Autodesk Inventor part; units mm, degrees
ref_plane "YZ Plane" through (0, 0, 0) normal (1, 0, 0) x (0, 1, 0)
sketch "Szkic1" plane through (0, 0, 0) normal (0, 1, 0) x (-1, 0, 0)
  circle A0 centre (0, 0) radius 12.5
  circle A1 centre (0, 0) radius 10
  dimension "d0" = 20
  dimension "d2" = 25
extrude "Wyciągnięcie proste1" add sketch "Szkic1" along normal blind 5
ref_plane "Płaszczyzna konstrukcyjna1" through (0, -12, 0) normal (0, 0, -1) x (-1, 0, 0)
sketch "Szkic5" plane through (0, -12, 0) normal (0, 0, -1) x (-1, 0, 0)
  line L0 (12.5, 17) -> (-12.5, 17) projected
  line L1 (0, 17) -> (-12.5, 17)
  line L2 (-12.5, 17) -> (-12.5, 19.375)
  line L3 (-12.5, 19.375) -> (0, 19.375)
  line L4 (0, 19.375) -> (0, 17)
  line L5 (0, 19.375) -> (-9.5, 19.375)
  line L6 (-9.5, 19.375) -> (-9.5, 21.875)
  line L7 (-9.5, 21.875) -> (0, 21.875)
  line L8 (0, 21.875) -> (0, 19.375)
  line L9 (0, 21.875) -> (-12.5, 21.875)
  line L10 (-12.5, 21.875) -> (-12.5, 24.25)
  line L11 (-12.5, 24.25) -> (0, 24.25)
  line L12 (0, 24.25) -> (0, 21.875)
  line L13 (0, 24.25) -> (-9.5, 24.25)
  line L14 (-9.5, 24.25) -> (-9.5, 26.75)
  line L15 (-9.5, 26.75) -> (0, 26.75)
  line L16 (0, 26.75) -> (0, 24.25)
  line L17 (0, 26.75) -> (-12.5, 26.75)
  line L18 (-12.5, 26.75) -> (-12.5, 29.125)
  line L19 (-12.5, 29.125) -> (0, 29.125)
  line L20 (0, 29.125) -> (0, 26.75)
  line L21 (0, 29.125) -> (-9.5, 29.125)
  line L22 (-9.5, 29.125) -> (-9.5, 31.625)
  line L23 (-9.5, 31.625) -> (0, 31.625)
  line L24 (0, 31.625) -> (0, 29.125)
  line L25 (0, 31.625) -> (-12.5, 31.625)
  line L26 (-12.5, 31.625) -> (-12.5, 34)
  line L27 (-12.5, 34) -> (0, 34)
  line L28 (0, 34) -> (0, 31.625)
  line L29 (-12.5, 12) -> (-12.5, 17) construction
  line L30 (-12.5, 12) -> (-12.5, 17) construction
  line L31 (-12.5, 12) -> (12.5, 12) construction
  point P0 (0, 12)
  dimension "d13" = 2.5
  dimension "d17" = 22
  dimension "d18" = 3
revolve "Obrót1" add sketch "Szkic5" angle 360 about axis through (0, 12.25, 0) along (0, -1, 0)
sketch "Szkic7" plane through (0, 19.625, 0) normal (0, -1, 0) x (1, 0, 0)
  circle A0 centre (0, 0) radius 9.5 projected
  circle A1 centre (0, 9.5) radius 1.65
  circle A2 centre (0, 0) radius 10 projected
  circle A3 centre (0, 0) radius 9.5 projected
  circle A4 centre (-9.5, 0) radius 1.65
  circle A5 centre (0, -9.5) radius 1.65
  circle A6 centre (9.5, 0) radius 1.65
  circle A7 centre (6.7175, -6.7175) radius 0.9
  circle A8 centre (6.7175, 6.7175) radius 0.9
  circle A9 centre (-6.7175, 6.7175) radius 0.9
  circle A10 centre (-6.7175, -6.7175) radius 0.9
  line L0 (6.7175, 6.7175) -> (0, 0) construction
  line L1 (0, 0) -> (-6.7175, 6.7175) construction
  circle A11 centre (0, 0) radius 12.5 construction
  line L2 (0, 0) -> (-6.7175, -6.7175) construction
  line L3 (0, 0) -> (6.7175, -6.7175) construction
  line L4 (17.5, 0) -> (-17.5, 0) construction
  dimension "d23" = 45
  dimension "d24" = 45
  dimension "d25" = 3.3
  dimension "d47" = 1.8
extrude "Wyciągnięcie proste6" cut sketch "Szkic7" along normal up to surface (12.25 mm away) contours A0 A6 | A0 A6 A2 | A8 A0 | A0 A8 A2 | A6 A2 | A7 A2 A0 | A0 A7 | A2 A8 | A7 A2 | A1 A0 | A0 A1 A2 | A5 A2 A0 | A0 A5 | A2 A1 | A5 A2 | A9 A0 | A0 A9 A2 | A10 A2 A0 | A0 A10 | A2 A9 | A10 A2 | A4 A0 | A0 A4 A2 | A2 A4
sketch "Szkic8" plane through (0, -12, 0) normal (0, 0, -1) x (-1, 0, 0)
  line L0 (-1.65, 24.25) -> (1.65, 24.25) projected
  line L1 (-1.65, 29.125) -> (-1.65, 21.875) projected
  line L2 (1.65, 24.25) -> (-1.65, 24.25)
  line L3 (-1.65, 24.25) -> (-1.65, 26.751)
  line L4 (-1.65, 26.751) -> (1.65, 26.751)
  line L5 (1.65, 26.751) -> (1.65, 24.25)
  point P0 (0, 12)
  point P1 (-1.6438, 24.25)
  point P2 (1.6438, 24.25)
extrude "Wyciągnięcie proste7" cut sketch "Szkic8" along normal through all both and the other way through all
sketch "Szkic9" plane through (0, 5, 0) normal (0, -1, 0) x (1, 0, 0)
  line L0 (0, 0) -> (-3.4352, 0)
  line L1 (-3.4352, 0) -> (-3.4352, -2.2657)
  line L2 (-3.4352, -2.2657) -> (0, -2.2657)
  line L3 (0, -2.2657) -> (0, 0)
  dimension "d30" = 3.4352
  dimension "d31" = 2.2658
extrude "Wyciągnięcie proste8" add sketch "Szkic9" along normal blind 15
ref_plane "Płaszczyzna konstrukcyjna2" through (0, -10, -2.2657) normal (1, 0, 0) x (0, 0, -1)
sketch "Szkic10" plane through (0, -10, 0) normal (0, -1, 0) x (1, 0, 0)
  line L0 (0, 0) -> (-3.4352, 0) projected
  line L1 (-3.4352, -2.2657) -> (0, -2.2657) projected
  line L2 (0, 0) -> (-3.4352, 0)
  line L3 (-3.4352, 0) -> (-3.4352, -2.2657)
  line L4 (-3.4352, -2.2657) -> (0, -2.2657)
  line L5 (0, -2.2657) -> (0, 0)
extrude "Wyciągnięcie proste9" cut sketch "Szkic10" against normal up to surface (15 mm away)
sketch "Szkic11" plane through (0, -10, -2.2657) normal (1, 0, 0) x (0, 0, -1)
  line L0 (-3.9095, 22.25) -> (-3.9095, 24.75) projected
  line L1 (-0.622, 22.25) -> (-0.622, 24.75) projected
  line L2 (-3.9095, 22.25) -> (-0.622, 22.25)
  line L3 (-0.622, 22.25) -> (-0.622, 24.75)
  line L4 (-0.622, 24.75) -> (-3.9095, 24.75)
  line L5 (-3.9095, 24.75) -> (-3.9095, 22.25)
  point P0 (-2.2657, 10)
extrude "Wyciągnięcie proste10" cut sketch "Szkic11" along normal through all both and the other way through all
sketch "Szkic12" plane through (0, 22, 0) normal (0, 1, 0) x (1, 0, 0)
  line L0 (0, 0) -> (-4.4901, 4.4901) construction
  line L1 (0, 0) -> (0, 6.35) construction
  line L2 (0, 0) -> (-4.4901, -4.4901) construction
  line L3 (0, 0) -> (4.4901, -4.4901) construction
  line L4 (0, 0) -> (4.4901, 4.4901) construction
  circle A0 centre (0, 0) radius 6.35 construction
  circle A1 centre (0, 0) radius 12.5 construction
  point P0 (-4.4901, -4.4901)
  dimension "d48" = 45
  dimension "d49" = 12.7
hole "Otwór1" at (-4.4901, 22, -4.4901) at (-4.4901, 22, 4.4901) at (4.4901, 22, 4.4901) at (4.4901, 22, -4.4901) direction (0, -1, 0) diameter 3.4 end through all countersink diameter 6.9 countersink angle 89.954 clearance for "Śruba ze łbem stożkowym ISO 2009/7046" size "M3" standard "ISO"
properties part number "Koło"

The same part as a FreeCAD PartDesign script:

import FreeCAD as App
import Part
import Sketcher

V = App.Vector
Q = App.Units.Quantity

doc = App.newDocument("Part")
params = doc.addObject("Spreadsheet::Sheet", "Params")
for row, (alias, value) in enumerate([
    ("sketch1_diameter", "25 mm"),
    ("sketch1_diameter2", "20 mm"),
    ("pad1_length", "5 mm"),
    ("sketch2_width", "3 mm"),
    ("sketch2_height", "2.5 mm"),
    ("sketch2_height2", "17 mm"),
    ("sketch2_width2", "12.5 mm"),
    ("revolution_angle", "360 deg"),
    ("sketch3_diameter", "3.3 mm"),
    ("sketch3_diameter2", "1.8 mm"),
    ("pocket1_length", "12.25 mm"),
    ("sketch4_width", "3.3 mm"),
    ("pad2_length", "15 mm"),
    ("pocket3_length", "15 mm"),
    ("sketch7_width", "2.5 mm"),
    ("sketch8_diameter", "3.4 mm"),
    ("hole_diameter", "3.4 mm"),
    ("hole_csink_diameter", "6.9 mm"),
], start=1):
    params.set(f"A{row}", alias)
    params.set(f"B{row}", "=" + value)
    params.setAlias(f"B{row}", alias)

body = doc.addObject("PartDesign::Body", "Body")

sketch1 = body.newObject("Sketcher::SketchObject", "Sketch")
sketch1.AttachmentSupport = (doc.getObject("XZ_Plane"), [""])
sketch1.MapMode = "FlatFace"
sketch1.addGeometry(Part.Circle(V(0, 0, 0), V(0, 0, 1), 12), False)
sketch1.addGeometry(Part.Circle(V(0, 0, 0), V(0, 0, 1), 10), False)
sketch1.addConstraint(Sketcher.Constraint("Coincident", 0, 3, -1, 1))
sketch1.addConstraint(Sketcher.Constraint("Coincident", 1, 3, -1, 1))
sketch1.addConstraint(Sketcher.Constraint("Diameter", 0, Q("25 mm")))
sketch1.addConstraint(Sketcher.Constraint("Diameter", 1, Q("20 mm")))
sketch1.setExpression("Constraints[2]", "Params.sketch1_diameter")
sketch1.setExpression("Constraints[3]", "Params.sketch1_diameter2")
pad1 = body.newObject("PartDesign::Pad", "Pad")
pad1.Profile = sketch1
pad1.setExpression("Length", "Params.pad1_length")
pad1.Reversed = True

sketch2 = body.newObject("Sketcher::SketchObject", "Sketch001")
sketch2.AttachmentSupport = (doc.getObject("XY_Plane"), [""])
sketch2.MapMode = "FlatFace"
sketch2.addGeometry(Part.LineSegment(V(12.5, 5, 0), V(0, 5, 0)), False)
sketch2.addGeometry(Part.LineSegment(V(0, 5, 0), V(0, 22, 0)), False)
sketch2.addGeometry(Part.LineSegment(V(0, 22, 0), V(12.5, 22, 0)), False)
sketch2.addGeometry(Part.LineSegment(V(12.5, 22, 0), V(12.5, 19.6, 0)), False)
sketch2.addGeometry(Part.LineSegment(V(12.5, 19.6, 0), V(9.5, 19.6, 0)), False)
sketch2.addGeometry(Part.LineSegment(V(9.5, 19.6, 0), V(9.5, 17.1, 0)), False)
sketch2.addGeometry(Part.LineSegment(V(9.5, 17.1, 0), V(12.5, 17.1, 0)), False)
sketch2.addGeometry(Part.LineSegment(V(12.5, 17.1, 0), V(12.5, 14.8, 0)), False)
sketch2.addGeometry(Part.LineSegment(V(12.5, 14.8, 0), V(9.5, 14.8, 0)), False)
sketch2.addGeometry(Part.LineSegment(V(9.5, 14.8, 0), V(9.5, 12.2, 0)), False)
sketch2.addGeometry(Part.LineSegment(V(9.5, 12.2, 0), V(12.5, 12.2, 0)), False)
sketch2.addGeometry(Part.LineSegment(V(12.5, 12.2, 0), V(12.5, 9.9, 0)), False)
sketch2.addGeometry(Part.LineSegment(V(12.5, 9.9, 0), V(9.5, 9.9, 0)), False)
sketch2.addGeometry(Part.LineSegment(V(9.5, 9.9, 0), V(9.5, 7.4, 0)), False)
sketch2.addGeometry(Part.LineSegment(V(9.5, 7.4, 0), V(12.5, 7.4, 0)), False)
sketch2.addGeometry(Part.LineSegment(V(12.5, 7.4, 0), V(12.5, 5, 0)), False)
sketch2.addConstraint(Sketcher.Constraint("Coincident", 0, 2, 1, 1))
sketch2.addConstraint(Sketcher.Constraint("Coincident", 1, 2, 2, 1))
sketch2.addConstraint(Sketcher.Constraint("Coincident", 2, 2, 3, 1))
sketch2.addConstraint(Sketcher.Constraint("Coincident", 3, 2, 4, 1))
sketch2.addConstraint(Sketcher.Constraint("Coincident", 4, 2, 5, 1))
sketch2.addConstraint(Sketcher.Constraint("Coincident", 5, 2, 6, 1))
sketch2.addConstraint(Sketcher.Constraint("Coincident", 6, 2, 7, 1))
sketch2.addConstraint(Sketcher.Constraint("Coincident", 7, 2, 8, 1))
sketch2.addConstraint(Sketcher.Constraint("Coincident", 8, 2, 9, 1))
sketch2.addConstraint(Sketcher.Constraint("Coincident", 9, 2, 10, 1))
sketch2.addConstraint(Sketcher.Constraint("Coincident", 10, 2, 11, 1))
sketch2.addConstraint(Sketcher.Constraint("Coincident", 11, 2, 12, 1))
sketch2.addConstraint(Sketcher.Constraint("Coincident", 12, 2, 13, 1))
sketch2.addConstraint(Sketcher.Constraint("Coincident", 13, 2, 14, 1))
sketch2.addConstraint(Sketcher.Constraint("Coincident", 14, 2, 15, 1))
sketch2.addConstraint(Sketcher.Constraint("Coincident", 15, 2, 0, 1))
sketch2.addConstraint(Sketcher.Constraint("Horizontal", 0))
sketch2.addConstraint(Sketcher.Constraint("Vertical", 1))
sketch2.addConstraint(Sketcher.Constraint("Horizontal", 2))
sketch2.addConstraint(Sketcher.Constraint("Vertical", 3))
sketch2.addConstraint(Sketcher.Constraint("Horizontal", 4))
sketch2.addConstraint(Sketcher.Constraint("Vertical", 5))
sketch2.addConstraint(Sketcher.Constraint("Horizontal", 6))
sketch2.addConstraint(Sketcher.Constraint("Vertical", 7))
sketch2.addConstraint(Sketcher.Constraint("Horizontal", 8))
sketch2.addConstraint(Sketcher.Constraint("Vertical", 9))
sketch2.addConstraint(Sketcher.Constraint("Horizontal", 10))
sketch2.addConstraint(Sketcher.Constraint("Vertical", 11))
sketch2.addConstraint(Sketcher.Constraint("Horizontal", 12))
sketch2.addConstraint(Sketcher.Constraint("Vertical", 13))
sketch2.addConstraint(Sketcher.Constraint("Horizontal", 14))
sketch2.addConstraint(Sketcher.Constraint("Vertical", 15))
sketch2.addConstraint(Sketcher.Constraint("PointOnObject", 0, 2, -2))
sketch2.addConstraint(Sketcher.Constraint("Vertical", 3, 2, 6, 2))
sketch2.addConstraint(Sketcher.Constraint("Vertical", 5, 2, 8, 2))
sketch2.addConstraint(Sketcher.Constraint("Vertical", 7, 2, 10, 2))
sketch2.addConstraint(Sketcher.Constraint("Vertical", 9, 2, 12, 2))
sketch2.addConstraint(Sketcher.Constraint("Vertical", 11, 2, 14, 2))
sketch2.addConstraint(Sketcher.Constraint("Equal", 3, 7))
sketch2.addConstraint(Sketcher.Constraint("Equal", 5, 9))
sketch2.addConstraint(Sketcher.Constraint("Equal", 7, 11))
sketch2.addConstraint(Sketcher.Constraint("Equal", 9, 13))
sketch2.addConstraint(Sketcher.Constraint("Equal", 11, 15))
sketch2.addConstraint(Sketcher.Constraint("DistanceX", 4, 2, 4, 1, Q("3 mm")))
sketch2.addConstraint(Sketcher.Constraint("DistanceY", 5, 2, 5, 1, Q("2.5 mm")))
sketch2.addConstraint(Sketcher.Constraint("DistanceY", -1, 1, 1, 2, Q("22 mm")))
sketch2.addConstraint(Sketcher.Constraint("DistanceY", 1, 1, 1, 2, Q("17 mm")))
sketch2.addConstraint(Sketcher.Constraint("DistanceX", 0, 2, 0, 1, Q("12.5 mm")))
sketch2.setExpression("Constraints[43]", "Params.sketch2_width")
sketch2.setExpression("Constraints[44]", "Params.sketch2_height")
sketch2.setExpression("Constraints[46]", "Params.sketch2_height2")
sketch2.setExpression("Constraints[47]", "Params.sketch2_width2")
revolution = body.newObject("PartDesign::Revolution", "Revolution")
revolution.Profile = sketch2
revolution.ReferenceAxis = (sketch2, ["V_Axis"])
revolution.setExpression("Angle", "Params.revolution_angle")

sketch3 = body.newObject("Sketcher::SketchObject", "Sketch002")
sketch3.AttachmentSupport = (doc.getObject("XZ_Plane"), [""])
sketch3.MapMode = "FlatFace"
sketch3.AttachmentOffset = App.Placement(V(0, 0, -19.625), App.Rotation())
sketch3.addGeometry(Part.Circle(V(9.5, 0, 0), V(0, 0, 1), 1.6), False)
sketch3.addGeometry(Part.Circle(V(6.7, 6.7, 0), V(0, 0, 1), 0.9), False)
sketch3.addGeometry(Part.Circle(V(6.7, -6.7, 0), V(0, 0, 1), 0.9), False)
sketch3.addGeometry(Part.Circle(V(0, 9.5, 0), V(0, 0, 1), 1.6), False)
sketch3.addGeometry(Part.Circle(V(0, -9.5, 0), V(0, 0, 1), 1.6), False)
sketch3.addGeometry(Part.Circle(V(-6.7, 6.7, 0), V(0, 0, 1), 0.9), False)
sketch3.addGeometry(Part.Circle(V(-6.7, -6.7, 0), V(0, 0, 1), 0.9), False)
sketch3.addGeometry(Part.Circle(V(-9.5, 0, 0), V(0, 0, 1), 1.6), False)
sketch3.addConstraint(Sketcher.Constraint("Equal", 1, 2))
sketch3.addConstraint(Sketcher.Constraint("Equal", 0, 3))
sketch3.addConstraint(Sketcher.Constraint("Equal", 3, 4))
sketch3.addConstraint(Sketcher.Constraint("Equal", 2, 5))
sketch3.addConstraint(Sketcher.Constraint("Equal", 5, 6))
sketch3.addConstraint(Sketcher.Constraint("Equal", 4, 7))
sketch3.addConstraint(Sketcher.Constraint("Symmetric", 3, 3, 4, 3, -1, 1))
sketch3.addConstraint(Sketcher.Constraint("Symmetric", 2, 3, 5, 3, -1, 1))
sketch3.addConstraint(Sketcher.Constraint("Symmetric", 1, 3, 6, 3, -1, 1))
sketch3.addConstraint(Sketcher.Constraint("Symmetric", 0, 3, 7, 3, -1, 1))
sketch3.addConstraint(Sketcher.Constraint("Symmetric", 1, 3, 5, 3, -2))
sketch3.addConstraint(Sketcher.Constraint("PointOnObject", 0, 3, -1))
sketch3.addConstraint(Sketcher.Constraint("PointOnObject", 3, 3, -2))
sketch3.addConstraint(Sketcher.Constraint("Diameter", 0, Q("3.3 mm")))
sketch3.addConstraint(Sketcher.Constraint("Diameter", 1, Q("1.8 mm")))
sketch3.addConstraint(Sketcher.Constraint("DistanceY", 4, 3, 3, 3, Q("19 mm")))
sketch3.addConstraint(Sketcher.Constraint("DistanceX", -1, 1, 0, 3, Q("9.5 mm")))
sketch3.addConstraint(Sketcher.Constraint("DistanceY", 2, 3, 1, 3, Q("13.435 mm")))
sketch3.addConstraint(Sketcher.Constraint("DistanceX", 5, 3, 1, 3, Q("13.435 mm")))
sketch3.setExpression("Constraints[13]", "Params.sketch3_diameter")
sketch3.setExpression("Constraints[14]", "Params.sketch3_diameter2")
pocket1 = body.newObject("PartDesign::Pocket", "Pocket")
pocket1.Profile = sketch3
pocket1.setExpression("Length", "Params.pocket1_length")
pocket1.Reversed = True

sketch4 = body.newObject("Sketcher::SketchObject", "Sketch003")
sketch4.AttachmentSupport = (doc.getObject("XY_Plane"), [""])
sketch4.MapMode = "FlatFace"
sketch4.addGeometry(Part.LineSegment(V(1.6, 14.8, 0), V(1.6, 12.2, 0)), False)
sketch4.addGeometry(Part.LineSegment(V(1.6, 12.2, 0), V(-1.6, 12.2, 0)), False)
sketch4.addGeometry(Part.LineSegment(V(-1.6, 12.2, 0), V(-1.6, 14.8, 0)), False)
sketch4.addGeometry(Part.LineSegment(V(-1.6, 14.8, 0), V(1.6, 14.8, 0)), False)
sketch4.addConstraint(Sketcher.Constraint("Coincident", 0, 2, 1, 1))
sketch4.addConstraint(Sketcher.Constraint("Coincident", 1, 2, 2, 1))
sketch4.addConstraint(Sketcher.Constraint("Coincident", 2, 2, 3, 1))
sketch4.addConstraint(Sketcher.Constraint("Coincident", 3, 2, 0, 1))
sketch4.addConstraint(Sketcher.Constraint("Vertical", 0))
sketch4.addConstraint(Sketcher.Constraint("Horizontal", 1))
sketch4.addConstraint(Sketcher.Constraint("Vertical", 2))
sketch4.addConstraint(Sketcher.Constraint("Horizontal", 3))
sketch4.addConstraint(Sketcher.Constraint("DistanceX", 1, 2, 1, 1, Q("3.3 mm")))
sketch4.addConstraint(Sketcher.Constraint("DistanceY", 0, 2, 0, 1, Q("2.501 mm")))
sketch4.addConstraint(Sketcher.Constraint("DistanceX", -1, 1, 0, 2, Q("1.65 mm")))
sketch4.addConstraint(Sketcher.Constraint("DistanceY", -1, 1, 0, 2, Q("12.25 mm")))
sketch4.setExpression("Constraints[8]", "Params.sketch4_width")
pocket2 = body.newObject("PartDesign::Pocket", "Pocket001")
pocket2.Profile = sketch4
pocket2.Type = "ThroughAll"
pocket2.Midplane = True

sketch5 = body.newObject("Sketcher::SketchObject", "Sketch004")
sketch5.AttachmentSupport = (doc.getObject("XZ_Plane"), [""])
sketch5.MapMode = "FlatFace"
sketch5.AttachmentOffset = App.Placement(V(0, 0, -5), App.Rotation())
sketch5.addGeometry(Part.LineSegment(V(0, -2.3, 0), V(0, 0, 0)), False)
sketch5.addGeometry(Part.LineSegment(V(0, 0, 0), V(-3.4, 0, 0)), False)
sketch5.addGeometry(Part.LineSegment(V(-3.4, 0, 0), V(-3.4, -2.3, 0)), False)
sketch5.addGeometry(Part.LineSegment(V(-3.4, -2.3, 0), V(0, -2.3, 0)), False)
sketch5.addConstraint(Sketcher.Constraint("Coincident", 0, 2, 1, 1))
sketch5.addConstraint(Sketcher.Constraint("Coincident", 1, 2, 2, 1))
sketch5.addConstraint(Sketcher.Constraint("Coincident", 2, 2, 3, 1))
sketch5.addConstraint(Sketcher.Constraint("Coincident", 3, 2, 0, 1))
sketch5.addConstraint(Sketcher.Constraint("Vertical", 0))
sketch5.addConstraint(Sketcher.Constraint("Horizontal", 1))
sketch5.addConstraint(Sketcher.Constraint("Vertical", 2))
sketch5.addConstraint(Sketcher.Constraint("Horizontal", 3))
sketch5.addConstraint(Sketcher.Constraint("Coincident", 0, 2, -1, 1))
sketch5.addConstraint(Sketcher.Constraint("DistanceX", 1, 2, 1, 1, Q("3.4352 mm")))
sketch5.addConstraint(Sketcher.Constraint("DistanceY", 0, 1, 0, 2, Q("2.2657 mm")))
pad2 = body.newObject("PartDesign::Pad", "Pad001")
pad2.Profile = sketch5
pad2.setExpression("Length", "Params.pad2_length")

sketch6 = body.newObject("Sketcher::SketchObject", "Sketch005")
sketch6.AttachmentSupport = (doc.getObject("XZ_Plane"), [""])
sketch6.MapMode = "FlatFace"
sketch6.AttachmentOffset = App.Placement(V(0, 0, 10), App.Rotation())
sketch6.addGeometry(Part.LineSegment(V(0, -2.3, 0), V(0, 0, 0)), False)
sketch6.addGeometry(Part.LineSegment(V(0, 0, 0), V(-3.4, 0, 0)), False)
sketch6.addGeometry(Part.LineSegment(V(-3.4, 0, 0), V(-3.4, -2.3, 0)), False)
sketch6.addGeometry(Part.LineSegment(V(-3.4, -2.3, 0), V(0, -2.3, 0)), False)
sketch6.addConstraint(Sketcher.Constraint("Coincident", 0, 2, 1, 1))
sketch6.addConstraint(Sketcher.Constraint("Coincident", 1, 2, 2, 1))
sketch6.addConstraint(Sketcher.Constraint("Coincident", 2, 2, 3, 1))
sketch6.addConstraint(Sketcher.Constraint("Coincident", 3, 2, 0, 1))
sketch6.addConstraint(Sketcher.Constraint("Vertical", 0))
sketch6.addConstraint(Sketcher.Constraint("Horizontal", 1))
sketch6.addConstraint(Sketcher.Constraint("Vertical", 2))
sketch6.addConstraint(Sketcher.Constraint("Horizontal", 3))
sketch6.addConstraint(Sketcher.Constraint("Coincident", 0, 2, -1, 1))
sketch6.addConstraint(Sketcher.Constraint("DistanceX", 1, 2, 1, 1, Q("3.4352 mm")))
sketch6.addConstraint(Sketcher.Constraint("DistanceY", 0, 1, 0, 2, Q("2.2657 mm")))
pocket3 = body.newObject("PartDesign::Pocket", "Pocket002")
pocket3.Profile = sketch6
pocket3.setExpression("Length", "Params.pocket3_length")

sketch7 = body.newObject("Sketcher::SketchObject", "Sketch006")
sketch7.AttachmentSupport = (doc.getObject("YZ_Plane"), [""])
sketch7.MapMode = "FlatFace"
sketch7.addGeometry(Part.LineSegment(V(14.8, 1.6, 0), V(12.2, 1.6, 0)), False)
sketch7.addGeometry(Part.LineSegment(V(12.2, 1.6, 0), V(12.2, -1.6, 0)), False)
sketch7.addGeometry(Part.LineSegment(V(12.2, -1.6, 0), V(14.8, -1.6, 0)), False)
sketch7.addGeometry(Part.LineSegment(V(14.8, -1.6, 0), V(14.8, 1.6, 0)), False)
sketch7.addConstraint(Sketcher.Constraint("Coincident", 0, 2, 1, 1))
sketch7.addConstraint(Sketcher.Constraint("Coincident", 1, 2, 2, 1))
sketch7.addConstraint(Sketcher.Constraint("Coincident", 2, 2, 3, 1))
sketch7.addConstraint(Sketcher.Constraint("Coincident", 3, 2, 0, 1))
sketch7.addConstraint(Sketcher.Constraint("Horizontal", 0))
sketch7.addConstraint(Sketcher.Constraint("Vertical", 1))
sketch7.addConstraint(Sketcher.Constraint("Horizontal", 2))
sketch7.addConstraint(Sketcher.Constraint("Vertical", 3))
sketch7.addConstraint(Sketcher.Constraint("DistanceX", 0, 2, 0, 1, Q("2.5 mm")))
sketch7.addConstraint(Sketcher.Constraint("DistanceX", -1, 1, 0, 2, Q("12.25 mm")))
sketch7.addConstraint(Sketcher.Constraint("DistanceY", 1, 2, 1, 1, Q("3.2875 mm")))
sketch7.addConstraint(Sketcher.Constraint("DistanceY", -1, 1, 0, 2, Q("1.6438 mm")))
sketch7.setExpression("Constraints[8]", "Params.sketch7_width")
pocket4 = body.newObject("PartDesign::Pocket", "Pocket003")
pocket4.Profile = sketch7
pocket4.Type = "ThroughAll"
pocket4.Midplane = True

sketch8 = body.newObject("Sketcher::SketchObject", "Sketch007")
sketch8.AttachmentSupport = (doc.getObject("XZ_Plane"), [""])
sketch8.MapMode = "FlatFace"
sketch8.AttachmentOffset = App.Placement(V(0, 0, -22), App.Rotation())
sketch8.addGeometry(Part.Circle(V(-4.5, -4.5, 0), V(0, 0, 1), 1.7), False)
sketch8.addGeometry(Part.Circle(V(-4.5, 4.5, 0), V(0, 0, 1), 1.7), False)
sketch8.addGeometry(Part.Circle(V(4.5, 4.5, 0), V(0, 0, 1), 1.7), False)
sketch8.addGeometry(Part.Circle(V(4.5, -4.5, 0), V(0, 0, 1), 1.7), False)
sketch8.addConstraint(Sketcher.Constraint("Equal", 0, 1))
sketch8.addConstraint(Sketcher.Constraint("Equal", 1, 2))
sketch8.addConstraint(Sketcher.Constraint("Equal", 2, 3))
sketch8.addConstraint(Sketcher.Constraint("Symmetric", 0, 3, 2, 3, -1, 1))
sketch8.addConstraint(Sketcher.Constraint("Symmetric", 1, 3, 3, 3, -1, 1))
sketch8.addConstraint(Sketcher.Constraint("Symmetric", 1, 3, 2, 3, -2))
sketch8.addConstraint(Sketcher.Constraint("Diameter", 0, Q("3.4 mm")))
sketch8.addConstraint(Sketcher.Constraint("DistanceX", 0, 3, -1, 1, Q("4.49 mm")))
sketch8.addConstraint(Sketcher.Constraint("DistanceY", 0, 3, -1, 1, Q("4.49 mm")))
sketch8.setExpression("Constraints[6]", "Params.sketch8_diameter")
doc.recompute()
hole = body.newObject("PartDesign::Hole", "Hole")
hole.Profile = sketch8
hole.ThreadType = "None"
hole.setExpression("Diameter", "Params.hole_diameter")
hole.DepthType = "ThroughAll"
hole.HoleCutType = "Countersink"
hole.setExpression("HoleCutDiameter", "Params.hole_csink_diameter")
hole.HoleCutCountersinkAngle = 89.954
hole.Reversed = True

doc.recompute()
